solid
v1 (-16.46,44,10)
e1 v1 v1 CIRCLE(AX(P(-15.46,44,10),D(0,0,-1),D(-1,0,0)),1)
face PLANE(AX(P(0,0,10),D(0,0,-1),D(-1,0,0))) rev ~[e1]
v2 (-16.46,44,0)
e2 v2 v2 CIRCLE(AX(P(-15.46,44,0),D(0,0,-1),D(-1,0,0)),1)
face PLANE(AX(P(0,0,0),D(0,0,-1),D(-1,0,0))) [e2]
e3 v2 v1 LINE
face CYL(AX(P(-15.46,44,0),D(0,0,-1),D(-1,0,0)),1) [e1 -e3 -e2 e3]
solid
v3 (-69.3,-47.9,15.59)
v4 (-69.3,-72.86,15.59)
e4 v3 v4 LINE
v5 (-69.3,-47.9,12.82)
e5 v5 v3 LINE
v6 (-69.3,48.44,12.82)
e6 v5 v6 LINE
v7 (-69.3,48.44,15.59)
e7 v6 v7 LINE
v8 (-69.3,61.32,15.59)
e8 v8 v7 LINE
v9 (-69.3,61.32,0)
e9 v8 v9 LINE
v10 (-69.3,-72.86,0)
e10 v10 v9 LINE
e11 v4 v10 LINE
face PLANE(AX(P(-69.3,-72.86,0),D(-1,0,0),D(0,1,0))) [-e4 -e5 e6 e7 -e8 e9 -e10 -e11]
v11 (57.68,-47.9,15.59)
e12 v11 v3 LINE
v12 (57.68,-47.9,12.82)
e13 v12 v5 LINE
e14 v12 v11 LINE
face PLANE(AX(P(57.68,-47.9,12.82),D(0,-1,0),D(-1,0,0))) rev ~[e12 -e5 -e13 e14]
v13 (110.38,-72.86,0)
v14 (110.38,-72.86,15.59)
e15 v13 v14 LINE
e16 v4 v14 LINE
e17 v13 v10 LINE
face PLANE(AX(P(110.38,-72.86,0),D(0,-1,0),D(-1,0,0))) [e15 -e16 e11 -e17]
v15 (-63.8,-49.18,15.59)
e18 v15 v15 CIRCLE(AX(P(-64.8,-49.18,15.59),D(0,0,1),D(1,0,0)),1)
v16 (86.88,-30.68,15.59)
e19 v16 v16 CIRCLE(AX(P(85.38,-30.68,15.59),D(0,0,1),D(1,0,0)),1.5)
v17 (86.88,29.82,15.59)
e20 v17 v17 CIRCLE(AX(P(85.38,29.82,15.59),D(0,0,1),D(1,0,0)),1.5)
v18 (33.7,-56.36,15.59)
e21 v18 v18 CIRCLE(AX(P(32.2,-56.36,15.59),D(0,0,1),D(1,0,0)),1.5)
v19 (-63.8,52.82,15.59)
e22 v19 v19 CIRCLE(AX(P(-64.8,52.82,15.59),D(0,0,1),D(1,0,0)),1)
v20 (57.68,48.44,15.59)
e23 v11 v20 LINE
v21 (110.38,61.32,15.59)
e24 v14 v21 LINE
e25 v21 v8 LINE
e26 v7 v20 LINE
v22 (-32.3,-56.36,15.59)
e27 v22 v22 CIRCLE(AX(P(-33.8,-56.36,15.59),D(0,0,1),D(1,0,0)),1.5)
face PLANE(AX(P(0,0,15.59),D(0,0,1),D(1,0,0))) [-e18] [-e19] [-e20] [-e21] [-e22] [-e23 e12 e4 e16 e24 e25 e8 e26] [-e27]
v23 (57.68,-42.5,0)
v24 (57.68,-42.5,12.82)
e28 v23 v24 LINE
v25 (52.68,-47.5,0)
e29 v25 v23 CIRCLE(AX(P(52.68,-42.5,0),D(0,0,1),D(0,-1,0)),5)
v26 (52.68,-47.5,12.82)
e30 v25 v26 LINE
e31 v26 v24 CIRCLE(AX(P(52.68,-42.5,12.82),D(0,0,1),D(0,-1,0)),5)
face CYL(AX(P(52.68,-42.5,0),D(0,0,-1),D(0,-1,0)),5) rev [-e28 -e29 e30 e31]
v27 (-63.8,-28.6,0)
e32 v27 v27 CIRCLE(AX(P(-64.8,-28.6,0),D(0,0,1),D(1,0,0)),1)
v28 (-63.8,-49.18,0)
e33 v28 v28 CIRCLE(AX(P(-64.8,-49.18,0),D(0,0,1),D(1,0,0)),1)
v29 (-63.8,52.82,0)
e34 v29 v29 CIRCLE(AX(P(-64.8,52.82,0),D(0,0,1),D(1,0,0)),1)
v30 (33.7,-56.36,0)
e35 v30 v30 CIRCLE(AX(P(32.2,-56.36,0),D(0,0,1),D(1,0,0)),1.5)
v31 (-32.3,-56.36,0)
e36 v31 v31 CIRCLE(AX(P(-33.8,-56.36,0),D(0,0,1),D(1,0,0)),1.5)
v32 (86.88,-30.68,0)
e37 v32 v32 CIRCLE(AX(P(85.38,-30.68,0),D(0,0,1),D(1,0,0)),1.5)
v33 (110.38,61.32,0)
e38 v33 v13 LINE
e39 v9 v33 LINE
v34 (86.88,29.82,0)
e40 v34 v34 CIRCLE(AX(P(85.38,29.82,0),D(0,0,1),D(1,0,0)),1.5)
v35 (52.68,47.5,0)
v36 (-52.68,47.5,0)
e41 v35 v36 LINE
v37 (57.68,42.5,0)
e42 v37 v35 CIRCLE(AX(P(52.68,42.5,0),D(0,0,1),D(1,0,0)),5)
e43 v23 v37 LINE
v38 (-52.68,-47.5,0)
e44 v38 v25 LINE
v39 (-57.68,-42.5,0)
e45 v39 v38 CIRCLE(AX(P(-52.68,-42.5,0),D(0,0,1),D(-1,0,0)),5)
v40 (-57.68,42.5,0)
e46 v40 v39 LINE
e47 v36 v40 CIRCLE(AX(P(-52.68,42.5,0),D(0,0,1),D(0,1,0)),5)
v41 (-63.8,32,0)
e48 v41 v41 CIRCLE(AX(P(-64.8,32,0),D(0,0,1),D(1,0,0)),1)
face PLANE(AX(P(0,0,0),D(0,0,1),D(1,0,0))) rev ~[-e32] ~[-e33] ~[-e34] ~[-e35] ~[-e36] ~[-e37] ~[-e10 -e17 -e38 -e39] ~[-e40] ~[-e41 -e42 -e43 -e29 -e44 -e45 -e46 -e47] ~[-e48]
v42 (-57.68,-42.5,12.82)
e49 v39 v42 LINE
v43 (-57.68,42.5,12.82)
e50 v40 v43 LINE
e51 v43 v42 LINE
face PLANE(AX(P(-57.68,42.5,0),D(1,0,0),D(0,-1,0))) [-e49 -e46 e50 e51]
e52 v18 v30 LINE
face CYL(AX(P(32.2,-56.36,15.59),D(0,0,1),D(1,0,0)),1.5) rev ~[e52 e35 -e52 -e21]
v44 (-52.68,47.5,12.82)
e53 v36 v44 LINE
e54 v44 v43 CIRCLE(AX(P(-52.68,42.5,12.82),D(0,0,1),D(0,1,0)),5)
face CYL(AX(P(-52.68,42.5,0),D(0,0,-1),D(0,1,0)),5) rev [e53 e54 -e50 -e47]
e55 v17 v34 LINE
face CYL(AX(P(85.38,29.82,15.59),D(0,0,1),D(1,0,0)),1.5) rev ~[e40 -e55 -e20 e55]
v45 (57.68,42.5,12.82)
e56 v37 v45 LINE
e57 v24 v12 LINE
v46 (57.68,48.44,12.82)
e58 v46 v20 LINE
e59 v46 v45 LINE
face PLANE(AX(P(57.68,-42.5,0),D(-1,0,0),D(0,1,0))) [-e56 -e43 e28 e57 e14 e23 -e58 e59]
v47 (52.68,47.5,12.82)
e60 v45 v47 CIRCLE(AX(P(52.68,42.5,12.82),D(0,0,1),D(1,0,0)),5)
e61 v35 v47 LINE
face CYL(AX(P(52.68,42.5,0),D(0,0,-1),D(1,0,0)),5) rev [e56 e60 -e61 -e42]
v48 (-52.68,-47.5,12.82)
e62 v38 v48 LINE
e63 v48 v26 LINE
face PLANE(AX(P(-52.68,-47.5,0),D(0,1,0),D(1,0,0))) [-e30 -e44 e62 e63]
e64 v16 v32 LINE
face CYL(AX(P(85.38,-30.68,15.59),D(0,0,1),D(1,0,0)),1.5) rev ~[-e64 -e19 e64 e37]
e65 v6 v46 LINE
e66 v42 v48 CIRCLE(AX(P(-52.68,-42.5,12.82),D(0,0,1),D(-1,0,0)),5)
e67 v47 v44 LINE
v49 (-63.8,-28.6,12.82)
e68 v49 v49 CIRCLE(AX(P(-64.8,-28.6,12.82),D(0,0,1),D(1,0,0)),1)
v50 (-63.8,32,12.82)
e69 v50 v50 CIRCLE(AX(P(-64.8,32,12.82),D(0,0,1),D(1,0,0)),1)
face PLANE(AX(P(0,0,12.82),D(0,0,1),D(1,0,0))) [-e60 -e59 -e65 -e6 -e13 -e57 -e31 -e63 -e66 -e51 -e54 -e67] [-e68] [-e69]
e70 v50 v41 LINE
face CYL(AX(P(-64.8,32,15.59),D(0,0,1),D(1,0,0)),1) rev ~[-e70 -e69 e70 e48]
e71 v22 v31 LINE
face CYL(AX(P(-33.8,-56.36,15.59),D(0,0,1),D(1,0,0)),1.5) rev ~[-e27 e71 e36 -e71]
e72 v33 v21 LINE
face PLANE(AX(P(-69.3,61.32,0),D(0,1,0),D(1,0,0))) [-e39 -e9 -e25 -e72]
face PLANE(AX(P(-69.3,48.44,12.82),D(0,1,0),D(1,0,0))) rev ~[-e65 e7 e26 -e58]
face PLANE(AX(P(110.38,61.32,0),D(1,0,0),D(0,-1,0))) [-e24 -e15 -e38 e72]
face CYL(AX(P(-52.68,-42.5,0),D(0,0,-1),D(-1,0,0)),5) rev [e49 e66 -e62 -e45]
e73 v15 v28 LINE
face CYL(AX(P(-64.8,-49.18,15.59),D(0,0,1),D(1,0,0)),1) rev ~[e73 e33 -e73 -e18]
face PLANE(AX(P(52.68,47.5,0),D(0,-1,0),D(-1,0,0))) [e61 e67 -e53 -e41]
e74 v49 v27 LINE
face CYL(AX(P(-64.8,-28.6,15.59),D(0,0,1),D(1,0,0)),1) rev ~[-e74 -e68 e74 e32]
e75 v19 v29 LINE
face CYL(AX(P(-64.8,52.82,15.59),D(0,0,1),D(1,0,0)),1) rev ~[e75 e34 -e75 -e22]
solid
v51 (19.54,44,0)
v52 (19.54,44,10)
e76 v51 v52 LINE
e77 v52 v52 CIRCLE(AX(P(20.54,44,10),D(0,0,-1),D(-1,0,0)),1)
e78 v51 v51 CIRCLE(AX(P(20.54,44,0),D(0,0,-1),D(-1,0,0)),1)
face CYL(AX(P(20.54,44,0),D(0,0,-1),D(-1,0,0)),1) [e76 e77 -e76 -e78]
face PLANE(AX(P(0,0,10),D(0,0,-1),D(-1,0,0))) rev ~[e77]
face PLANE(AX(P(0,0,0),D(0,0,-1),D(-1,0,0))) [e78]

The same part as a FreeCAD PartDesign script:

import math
import FreeCAD as App
import Part
import Sketcher
Q = App.Units.Quantity


def add_polygon(sketch, points):
    """Adds a closed chain of lines whose ends are joined by coincident constraints."""
    first, n = sketch.GeometryCount, len(points)
    for a, b in zip(points, points[1:] + points[:1]):
        sketch.addGeometry(Part.LineSegment(App.Vector(*a, 0), App.Vector(*b, 0)), False)
    for i in range(n):
        sketch.addConstraint(Sketcher.Constraint("Coincident", first + i, 2, first + (i + 1) % n, 1))

doc = App.newDocument("Part")
params = doc.addObject("Spreadsheet::Sheet", "Params")
for row, (alias, value) in enumerate([
    ("sketch1_radius", "5 mm"),
    ("sketch1_height", "85 mm"),
    ("sketch1_width", "179.68 mm"),
    ("pad1_length", "12.82 mm"),
    ("sketch2_height", "12.88 mm"),
    ("sketch2_width", "179.68 mm"),
    ("sketch2_width2", "126.98 mm"),
    ("sketch2_height2", "134.18 mm"),
    ("sketch2_height3", "96.34 mm"),
    ("pad2_length", "2.77 mm"),
    ("sketch3_diameter", "2 mm"),
    ("sketch3_diameter2", "3 mm"),
    ("sketch4_diameter", "2 mm"),
    ("pad3_length", "10 mm"),
], start=1):
    params.set(f"A{row}", alias)
    params.set(f"B{row}", "=" + value)
    params.setAlias(f"B{row}", alias)

body = doc.addObject("PartDesign::Body", "Body")
body.AllowCompound = True

# Sketch on XY plane
sketch1 = body.newObject("Sketcher::SketchObject", "Sketch")
sketch1.AttachmentSupport = (doc.getObject("XY_Plane"), [""])
sketch1.MapMode = "FlatFace"
add_polygon(sketch1, [(-69, -73), (110, -73), (110, 61), (-69, 61)])  # lines 0-3
sketch1.addGeometry(Part.LineSegment(App.Vector(-53, 48, 0), App.Vector(53, 48, 0)), False)  # 4
sketch1.addGeometry(Part.ArcOfCircle(Part.Circle(App.Vector(53, 42, 0), App.Vector(0, 0, 1), 5), math.radians(0), math.radians(90)), False)  # 5
sketch1.addGeometry(Part.LineSegment(App.Vector(58, 42, 0), App.Vector(58, -42, 0)), False)  # 6
sketch1.addGeometry(Part.ArcOfCircle(Part.Circle(App.Vector(53, -42, 0), App.Vector(0, 0, 1), 5), math.radians(-90), math.radians(0)), False)  # 7
sketch1.addGeometry(Part.LineSegment(App.Vector(53, -48, 0), App.Vector(-53, -48, 0)), False)  # 8
sketch1.addGeometry(Part.ArcOfCircle(Part.Circle(App.Vector(-53, -42, 0), App.Vector(0, 0, 1), 5), math.radians(180), math.radians(270)), False)  # 9
sketch1.addGeometry(Part.LineSegment(App.Vector(-58, -42, 0), App.Vector(-58, 42, 0)), False)  # 10
sketch1.addGeometry(Part.ArcOfCircle(Part.Circle(App.Vector(-53, 42, 0), App.Vector(0, 0, 1), 5), math.radians(90), math.radians(180)), False)  # 11
sketch1.addConstraint([
    Sketcher.Constraint("Tangent", 4, 2, 5, 2),
    Sketcher.Constraint("Tangent", 5, 1, 6, 1),
    Sketcher.Constraint("Tangent", 6, 2, 7, 2),
    Sketcher.Constraint("Tangent", 7, 1, 8, 1),
    Sketcher.Constraint("Tangent", 8, 2, 9, 2),
    Sketcher.Constraint("Tangent", 9, 1, 10, 1),
    Sketcher.Constraint("Tangent", 10, 2, 11, 2),
    Sketcher.Constraint("Tangent", 11, 1, 4, 1),
    Sketcher.Constraint("Horizontal", 0),
    Sketcher.Constraint("Vertical", 1),
    Sketcher.Constraint("Horizontal", 2),
    Sketcher.Constraint("Vertical", 3),
    Sketcher.Constraint("Horizontal", 4),
    Sketcher.Constraint("Vertical", 6),
    Sketcher.Constraint("Horizontal", 8),
    Sketcher.Constraint("Vertical", 10),
    Sketcher.Constraint("Equal", 5, 7),
    Sketcher.Constraint("Equal", 7, 9),
    Sketcher.Constraint("Equal", 9, 11),
    Sketcher.Constraint("Symmetric", 5, 3, 9, 3, -1, 1),
    Sketcher.Constraint("Radius", 5, Q("5 mm")),
    Sketcher.Constraint("DistanceX", 5, 1, 1, 2, Q("52.7 mm")),
    Sketcher.Constraint("DistanceY", 6, 2, 6, 1, Q("85 mm")),
    Sketcher.Constraint("DistanceY", 0, 2, 5, 3, Q("115.36 mm")),
    Sketcher.Constraint("DistanceY", 4, 2, 1, 2, Q("13.82 mm")),
    Sketcher.Constraint("DistanceX", 3, 2, 9, 1, Q("11.62 mm")),
    Sketcher.Constraint("DistanceX", 0, 1, 0, 2, Q("179.68 mm")),
])
sketch1.setExpression("Constraints[24]", "Params.sketch1_radius")
sketch1.setExpression("Constraints[26]", "Params.sketch1_height")
sketch1.setExpression("Constraints[30]", "Params.sketch1_width")
pad1 = body.newObject("PartDesign::Pad", "Pad")
pad1.Profile = sketch1
pad1.setExpression("Length", "Params.pad1_length")

# Sketch on XY plane
sketch2 = body.newObject("Sketcher::SketchObject", "Sketch001")
sketch2.AttachmentSupport = (doc.getObject("XY_Plane"), [""])
sketch2.MapMode = "FlatFace"
sketch2.AttachmentOffset = App.Placement(App.Vector(0, 0, 12.82), App.Rotation())
add_polygon(sketch2, [(110, -73), (110, 61), (-69, 61), (-69, 48), (58, 48), (58, -48), (-69, -48), (-69, -73)])  # lines 0-7
sketch2.addConstraint([
    Sketcher.Constraint("Vertical", 0),
    Sketcher.Constraint("Horizontal", 1),
    Sketcher.Constraint("Vertical", 2),
    Sketcher.Constraint("Horizontal", 3),
    Sketcher.Constraint("Vertical", 4),
    Sketcher.Constraint("Horizontal", 5),
    Sketcher.Constraint("Vertical", 6),
    Sketcher.Constraint("Horizontal", 7),
    Sketcher.Constraint("Vertical", 2, 2, 5, 2),
    Sketcher.Constraint("DistanceY", 2, 2, 2, 1, Q("12.88 mm")),
    Sketcher.Constraint("DistanceX", 1, 2, 1, 1, Q("179.68 mm")),
    Sketcher.Constraint("DistanceX", 3, 1, 3, 2, Q("126.98 mm")),
    Sketcher.Constraint("DistanceY", 0, 1, 0, 2, Q("134.18 mm")),
    Sketcher.Constraint("DistanceY", 4, 2, 4, 1, Q("96.34 mm")),
    Sketcher.Constraint("DistanceX", 1, 2, -1, 1, Q("69.3 mm")),
    Sketcher.Constraint("DistanceY", 4, 2, -1, 1, Q("47.9 mm")),
])
sketch2.setExpression("Constraints[17]", "Params.sketch2_height")
sketch2.setExpression("Constraints[18]", "Params.sketch2_width")
sketch2.setExpression("Constraints[19]", "Params.sketch2_width2")
sketch2.setExpression("Constraints[20]", "Params.sketch2_height2")
sketch2.setExpression("Constraints[21]", "Params.sketch2_height3")
pad2 = body.newObject("PartDesign::Pad", "Pad001")
pad2.Profile = sketch2
pad2.setExpression("Length", "Params.pad2_length")

# Sketch on XY plane
sketch3 = body.newObject("Sketcher::SketchObject", "Sketch002")
sketch3.AttachmentSupport = (doc.getObject("XY_Plane"), [""])
sketch3.MapMode = "FlatFace"
sketch3.AttachmentOffset = App.Placement(App.Vector(0, 0, 15.59), App.Rotation())
sketch3.addGeometry([
    Part.Circle(App.Vector(-64.8, 52.8, 0), App.Vector(0, 0, 1), 1),  # 0
    Part.Circle(App.Vector(-64.8, 32, 0), App.Vector(0, 0, 1), 1),  # 1
    Part.Circle(App.Vector(-64.8, -28.6, 0), App.Vector(0, 0, 1), 1),  # 2
    Part.Circle(App.Vector(85.4, 29.8, 0), App.Vector(0, 0, 1), 1.5),  # 3
    Part.Circle(App.Vector(85.4, -30.7, 0), App.Vector(0, 0, 1), 1.5),  # 4
    Part.Circle(App.Vector(32.2, -56.4, 0), App.Vector(0, 0, 1), 1.5),  # 5
    Part.Circle(App.Vector(-33.8, -56.4, 0), App.Vector(0, 0, 1), 1.5),  # 6
    Part.Circle(App.Vector(-64.8, -49.2, 0), App.Vector(0, 0, 1), 1),  # 7
], False)
sketch3.addConstraint([
    Sketcher.Constraint("Equal", 0, 1),
    Sketcher.Constraint("Equal", 1, 2),
    Sketcher.Constraint("Equal", 3, 4),
    Sketcher.Constraint("Equal", 4, 5),
    Sketcher.Constraint("Equal", 5, 6),
    Sketcher.Constraint("Equal", 2, 7),
    Sketcher.Constraint("Horizontal", 5, 3, 6, 3),
    Sketcher.Constraint("Vertical", 0, 3, 1, 3),
    Sketcher.Constraint("Vertical", 1, 3, 2, 3),
    Sketcher.Constraint("Vertical", 3, 3, 4, 3),
    Sketcher.Constraint("Vertical", 2, 3, 7, 3),
    Sketcher.Constraint("Diameter", 0, Q("2 mm")),
    Sketcher.Constraint("Diameter", 3, Q("3 mm")),
    Sketcher.Constraint("DistanceX", 6, 3, 5, 3, Q("66 mm")),
    Sketcher.Constraint("DistanceY", 7, 3, 0, 3, Q("102 mm")),
    Sketcher.Constraint("DistanceY", 4, 3, 3, 3, Q("60.5 mm")),
    Sketcher.Constraint("DistanceY", 1, 3, 0, 3, Q("20.82 mm")),
    Sketcher.Constraint("DistanceY", 2, 3, 0, 3, Q("81.42 mm")),
    Sketcher.Constraint("DistanceY", -1, 1, 1, 3, Q("32 mm")),
    Sketcher.Constraint("DistanceY", 3, 3, 0, 3, Q("23 mm")),
    Sketcher.Constraint("DistanceX", 2, 3, 5, 3, Q("97 mm")),
    Sketcher.Constraint("DistanceX", 0, 3, -1, 1, Q("64.8 mm")),
    Sketcher.Constraint("DistanceX", -1, 1, 3, 3, Q("85.38 mm")),
    Sketcher.Constraint("DistanceY", 5, 3, -1, 1, Q("56.36 mm")),
])
sketch3.setExpression("Constraints[11]", "Params.sketch3_diameter")
sketch3.setExpression("Constraints[12]", "Params.sketch3_diameter2")
pocket1 = body.newObject("PartDesign::Pocket", "Pocket")
pocket1.Profile = sketch3
pocket1.Type = "ThroughAll"

# Sketch on XY plane
sketch4 = body.newObject("Sketcher::SketchObject", "Sketch003")
sketch4.AttachmentSupport = (doc.getObject("XY_Plane"), [""])
sketch4.MapMode = "FlatFace"
sketch4.addGeometry([
    Part.Circle(App.Vector(-15.5, 44, 0), App.Vector(0, 0, 1), 1),
    Part.Circle(App.Vector(20.5, 44, 0), App.Vector(0, 0, 1), 1),
], False)
sketch4.addConstraint([
    Sketcher.Constraint("Equal", 0, 1),
    Sketcher.Constraint("Horizontal", 0, 3, 1, 3),
    Sketcher.Constraint("Diameter", 0, Q("2 mm")),
    Sketcher.Constraint("DistanceX", 0, 3, 1, 3, Q("36 mm")),
    Sketcher.Constraint("DistanceY", -1, 1, 0, 3, Q("44 mm")),
    Sketcher.Constraint("DistanceX", 0, 3, -1, 1, Q("15.46 mm")),
])
sketch4.setExpression("Constraints[2]", "Params.sketch4_diameter")
pad3 = body.newObject("PartDesign::Pad", "Pad002")
pad3.Profile = sketch4
pad3.setExpression("Length", "Params.pad3_length")

doc.recompute()
